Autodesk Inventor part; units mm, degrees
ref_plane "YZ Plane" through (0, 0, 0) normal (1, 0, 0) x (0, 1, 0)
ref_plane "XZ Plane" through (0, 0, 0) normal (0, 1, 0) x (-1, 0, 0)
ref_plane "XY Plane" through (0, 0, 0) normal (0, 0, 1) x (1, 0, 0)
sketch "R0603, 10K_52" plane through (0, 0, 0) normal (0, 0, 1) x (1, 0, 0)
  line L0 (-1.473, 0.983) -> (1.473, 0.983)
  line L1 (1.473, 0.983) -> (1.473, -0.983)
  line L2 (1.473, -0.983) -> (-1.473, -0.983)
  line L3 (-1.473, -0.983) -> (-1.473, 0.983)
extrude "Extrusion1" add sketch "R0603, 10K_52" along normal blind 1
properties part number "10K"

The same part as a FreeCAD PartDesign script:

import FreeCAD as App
import Part
import Sketcher
from FreeCAD import Vector

doc = App.newDocument("Part")
params = doc.addObject("Spreadsheet::Sheet", "Params")
for row, (alias, value) in enumerate([
    ("pad1_length", "1 mm"),
], start=1):
    params.set(f"A{row}", alias)
    params.set(f"B{row}", "=" + value)
    params.setAlias(f"B{row}", alias)

body = doc.addObject("PartDesign::Body", "Body")

# Sketch on XY plane
sketch1 = doc.addObject("Sketcher::SketchObject", "Sketch")
body.addObject(sketch1)
sketch1.AttachmentSupport = (doc.XY_Plane, [""])
sketch1.MapMode = "FlatFace"
sketch1.addGeometry([
    Part.LineSegment(Vector(1.5, 1, 0), Vector(-1.5, 1, 0)),
    Part.LineSegment(Vector(-1.5, 1, 0), Vector(-1.5, -1, 0)),
    Part.LineSegment(Vector(-1.5, -1, 0), Vector(1.5, -1, 0)),
    Part.LineSegment(Vector(1.5, -1, 0), Vector(1.5, 1, 0)),
], False)
sketch1.addConstraint([
    Sketcher.Constraint("Coincident", 0, 2, 1, 1),
    Sketcher.Constraint("Coincident", 1, 2, 2, 1),
    Sketcher.Constraint("Coincident", 2, 2, 3, 1),
    Sketcher.Constraint("Coincident", 3, 2, 0, 1),
    Sketcher.Constraint("Horizontal", 0),
    Sketcher.Constraint("Vertical", 1),
    Sketcher.Constraint("Horizontal", 2),
    Sketcher.Constraint("Vertical", 3),
    Sketcher.Constraint("Symmetric", 0, 2, 2, 2, -1, 1),
    Sketcher.Constraint("DistanceX", 0, 2, 0, 1, 2.946),
    Sketcher.Constraint("DistanceY", 1, 2, 1, 1, 1.966),
])
pad1 = doc.addObject("PartDesign::Pad", "Pad")
body.addObject(pad1)
pad1.Profile = sketch1
pad1.setExpression("Length", "Params.pad1_length")

doc.recompute()
